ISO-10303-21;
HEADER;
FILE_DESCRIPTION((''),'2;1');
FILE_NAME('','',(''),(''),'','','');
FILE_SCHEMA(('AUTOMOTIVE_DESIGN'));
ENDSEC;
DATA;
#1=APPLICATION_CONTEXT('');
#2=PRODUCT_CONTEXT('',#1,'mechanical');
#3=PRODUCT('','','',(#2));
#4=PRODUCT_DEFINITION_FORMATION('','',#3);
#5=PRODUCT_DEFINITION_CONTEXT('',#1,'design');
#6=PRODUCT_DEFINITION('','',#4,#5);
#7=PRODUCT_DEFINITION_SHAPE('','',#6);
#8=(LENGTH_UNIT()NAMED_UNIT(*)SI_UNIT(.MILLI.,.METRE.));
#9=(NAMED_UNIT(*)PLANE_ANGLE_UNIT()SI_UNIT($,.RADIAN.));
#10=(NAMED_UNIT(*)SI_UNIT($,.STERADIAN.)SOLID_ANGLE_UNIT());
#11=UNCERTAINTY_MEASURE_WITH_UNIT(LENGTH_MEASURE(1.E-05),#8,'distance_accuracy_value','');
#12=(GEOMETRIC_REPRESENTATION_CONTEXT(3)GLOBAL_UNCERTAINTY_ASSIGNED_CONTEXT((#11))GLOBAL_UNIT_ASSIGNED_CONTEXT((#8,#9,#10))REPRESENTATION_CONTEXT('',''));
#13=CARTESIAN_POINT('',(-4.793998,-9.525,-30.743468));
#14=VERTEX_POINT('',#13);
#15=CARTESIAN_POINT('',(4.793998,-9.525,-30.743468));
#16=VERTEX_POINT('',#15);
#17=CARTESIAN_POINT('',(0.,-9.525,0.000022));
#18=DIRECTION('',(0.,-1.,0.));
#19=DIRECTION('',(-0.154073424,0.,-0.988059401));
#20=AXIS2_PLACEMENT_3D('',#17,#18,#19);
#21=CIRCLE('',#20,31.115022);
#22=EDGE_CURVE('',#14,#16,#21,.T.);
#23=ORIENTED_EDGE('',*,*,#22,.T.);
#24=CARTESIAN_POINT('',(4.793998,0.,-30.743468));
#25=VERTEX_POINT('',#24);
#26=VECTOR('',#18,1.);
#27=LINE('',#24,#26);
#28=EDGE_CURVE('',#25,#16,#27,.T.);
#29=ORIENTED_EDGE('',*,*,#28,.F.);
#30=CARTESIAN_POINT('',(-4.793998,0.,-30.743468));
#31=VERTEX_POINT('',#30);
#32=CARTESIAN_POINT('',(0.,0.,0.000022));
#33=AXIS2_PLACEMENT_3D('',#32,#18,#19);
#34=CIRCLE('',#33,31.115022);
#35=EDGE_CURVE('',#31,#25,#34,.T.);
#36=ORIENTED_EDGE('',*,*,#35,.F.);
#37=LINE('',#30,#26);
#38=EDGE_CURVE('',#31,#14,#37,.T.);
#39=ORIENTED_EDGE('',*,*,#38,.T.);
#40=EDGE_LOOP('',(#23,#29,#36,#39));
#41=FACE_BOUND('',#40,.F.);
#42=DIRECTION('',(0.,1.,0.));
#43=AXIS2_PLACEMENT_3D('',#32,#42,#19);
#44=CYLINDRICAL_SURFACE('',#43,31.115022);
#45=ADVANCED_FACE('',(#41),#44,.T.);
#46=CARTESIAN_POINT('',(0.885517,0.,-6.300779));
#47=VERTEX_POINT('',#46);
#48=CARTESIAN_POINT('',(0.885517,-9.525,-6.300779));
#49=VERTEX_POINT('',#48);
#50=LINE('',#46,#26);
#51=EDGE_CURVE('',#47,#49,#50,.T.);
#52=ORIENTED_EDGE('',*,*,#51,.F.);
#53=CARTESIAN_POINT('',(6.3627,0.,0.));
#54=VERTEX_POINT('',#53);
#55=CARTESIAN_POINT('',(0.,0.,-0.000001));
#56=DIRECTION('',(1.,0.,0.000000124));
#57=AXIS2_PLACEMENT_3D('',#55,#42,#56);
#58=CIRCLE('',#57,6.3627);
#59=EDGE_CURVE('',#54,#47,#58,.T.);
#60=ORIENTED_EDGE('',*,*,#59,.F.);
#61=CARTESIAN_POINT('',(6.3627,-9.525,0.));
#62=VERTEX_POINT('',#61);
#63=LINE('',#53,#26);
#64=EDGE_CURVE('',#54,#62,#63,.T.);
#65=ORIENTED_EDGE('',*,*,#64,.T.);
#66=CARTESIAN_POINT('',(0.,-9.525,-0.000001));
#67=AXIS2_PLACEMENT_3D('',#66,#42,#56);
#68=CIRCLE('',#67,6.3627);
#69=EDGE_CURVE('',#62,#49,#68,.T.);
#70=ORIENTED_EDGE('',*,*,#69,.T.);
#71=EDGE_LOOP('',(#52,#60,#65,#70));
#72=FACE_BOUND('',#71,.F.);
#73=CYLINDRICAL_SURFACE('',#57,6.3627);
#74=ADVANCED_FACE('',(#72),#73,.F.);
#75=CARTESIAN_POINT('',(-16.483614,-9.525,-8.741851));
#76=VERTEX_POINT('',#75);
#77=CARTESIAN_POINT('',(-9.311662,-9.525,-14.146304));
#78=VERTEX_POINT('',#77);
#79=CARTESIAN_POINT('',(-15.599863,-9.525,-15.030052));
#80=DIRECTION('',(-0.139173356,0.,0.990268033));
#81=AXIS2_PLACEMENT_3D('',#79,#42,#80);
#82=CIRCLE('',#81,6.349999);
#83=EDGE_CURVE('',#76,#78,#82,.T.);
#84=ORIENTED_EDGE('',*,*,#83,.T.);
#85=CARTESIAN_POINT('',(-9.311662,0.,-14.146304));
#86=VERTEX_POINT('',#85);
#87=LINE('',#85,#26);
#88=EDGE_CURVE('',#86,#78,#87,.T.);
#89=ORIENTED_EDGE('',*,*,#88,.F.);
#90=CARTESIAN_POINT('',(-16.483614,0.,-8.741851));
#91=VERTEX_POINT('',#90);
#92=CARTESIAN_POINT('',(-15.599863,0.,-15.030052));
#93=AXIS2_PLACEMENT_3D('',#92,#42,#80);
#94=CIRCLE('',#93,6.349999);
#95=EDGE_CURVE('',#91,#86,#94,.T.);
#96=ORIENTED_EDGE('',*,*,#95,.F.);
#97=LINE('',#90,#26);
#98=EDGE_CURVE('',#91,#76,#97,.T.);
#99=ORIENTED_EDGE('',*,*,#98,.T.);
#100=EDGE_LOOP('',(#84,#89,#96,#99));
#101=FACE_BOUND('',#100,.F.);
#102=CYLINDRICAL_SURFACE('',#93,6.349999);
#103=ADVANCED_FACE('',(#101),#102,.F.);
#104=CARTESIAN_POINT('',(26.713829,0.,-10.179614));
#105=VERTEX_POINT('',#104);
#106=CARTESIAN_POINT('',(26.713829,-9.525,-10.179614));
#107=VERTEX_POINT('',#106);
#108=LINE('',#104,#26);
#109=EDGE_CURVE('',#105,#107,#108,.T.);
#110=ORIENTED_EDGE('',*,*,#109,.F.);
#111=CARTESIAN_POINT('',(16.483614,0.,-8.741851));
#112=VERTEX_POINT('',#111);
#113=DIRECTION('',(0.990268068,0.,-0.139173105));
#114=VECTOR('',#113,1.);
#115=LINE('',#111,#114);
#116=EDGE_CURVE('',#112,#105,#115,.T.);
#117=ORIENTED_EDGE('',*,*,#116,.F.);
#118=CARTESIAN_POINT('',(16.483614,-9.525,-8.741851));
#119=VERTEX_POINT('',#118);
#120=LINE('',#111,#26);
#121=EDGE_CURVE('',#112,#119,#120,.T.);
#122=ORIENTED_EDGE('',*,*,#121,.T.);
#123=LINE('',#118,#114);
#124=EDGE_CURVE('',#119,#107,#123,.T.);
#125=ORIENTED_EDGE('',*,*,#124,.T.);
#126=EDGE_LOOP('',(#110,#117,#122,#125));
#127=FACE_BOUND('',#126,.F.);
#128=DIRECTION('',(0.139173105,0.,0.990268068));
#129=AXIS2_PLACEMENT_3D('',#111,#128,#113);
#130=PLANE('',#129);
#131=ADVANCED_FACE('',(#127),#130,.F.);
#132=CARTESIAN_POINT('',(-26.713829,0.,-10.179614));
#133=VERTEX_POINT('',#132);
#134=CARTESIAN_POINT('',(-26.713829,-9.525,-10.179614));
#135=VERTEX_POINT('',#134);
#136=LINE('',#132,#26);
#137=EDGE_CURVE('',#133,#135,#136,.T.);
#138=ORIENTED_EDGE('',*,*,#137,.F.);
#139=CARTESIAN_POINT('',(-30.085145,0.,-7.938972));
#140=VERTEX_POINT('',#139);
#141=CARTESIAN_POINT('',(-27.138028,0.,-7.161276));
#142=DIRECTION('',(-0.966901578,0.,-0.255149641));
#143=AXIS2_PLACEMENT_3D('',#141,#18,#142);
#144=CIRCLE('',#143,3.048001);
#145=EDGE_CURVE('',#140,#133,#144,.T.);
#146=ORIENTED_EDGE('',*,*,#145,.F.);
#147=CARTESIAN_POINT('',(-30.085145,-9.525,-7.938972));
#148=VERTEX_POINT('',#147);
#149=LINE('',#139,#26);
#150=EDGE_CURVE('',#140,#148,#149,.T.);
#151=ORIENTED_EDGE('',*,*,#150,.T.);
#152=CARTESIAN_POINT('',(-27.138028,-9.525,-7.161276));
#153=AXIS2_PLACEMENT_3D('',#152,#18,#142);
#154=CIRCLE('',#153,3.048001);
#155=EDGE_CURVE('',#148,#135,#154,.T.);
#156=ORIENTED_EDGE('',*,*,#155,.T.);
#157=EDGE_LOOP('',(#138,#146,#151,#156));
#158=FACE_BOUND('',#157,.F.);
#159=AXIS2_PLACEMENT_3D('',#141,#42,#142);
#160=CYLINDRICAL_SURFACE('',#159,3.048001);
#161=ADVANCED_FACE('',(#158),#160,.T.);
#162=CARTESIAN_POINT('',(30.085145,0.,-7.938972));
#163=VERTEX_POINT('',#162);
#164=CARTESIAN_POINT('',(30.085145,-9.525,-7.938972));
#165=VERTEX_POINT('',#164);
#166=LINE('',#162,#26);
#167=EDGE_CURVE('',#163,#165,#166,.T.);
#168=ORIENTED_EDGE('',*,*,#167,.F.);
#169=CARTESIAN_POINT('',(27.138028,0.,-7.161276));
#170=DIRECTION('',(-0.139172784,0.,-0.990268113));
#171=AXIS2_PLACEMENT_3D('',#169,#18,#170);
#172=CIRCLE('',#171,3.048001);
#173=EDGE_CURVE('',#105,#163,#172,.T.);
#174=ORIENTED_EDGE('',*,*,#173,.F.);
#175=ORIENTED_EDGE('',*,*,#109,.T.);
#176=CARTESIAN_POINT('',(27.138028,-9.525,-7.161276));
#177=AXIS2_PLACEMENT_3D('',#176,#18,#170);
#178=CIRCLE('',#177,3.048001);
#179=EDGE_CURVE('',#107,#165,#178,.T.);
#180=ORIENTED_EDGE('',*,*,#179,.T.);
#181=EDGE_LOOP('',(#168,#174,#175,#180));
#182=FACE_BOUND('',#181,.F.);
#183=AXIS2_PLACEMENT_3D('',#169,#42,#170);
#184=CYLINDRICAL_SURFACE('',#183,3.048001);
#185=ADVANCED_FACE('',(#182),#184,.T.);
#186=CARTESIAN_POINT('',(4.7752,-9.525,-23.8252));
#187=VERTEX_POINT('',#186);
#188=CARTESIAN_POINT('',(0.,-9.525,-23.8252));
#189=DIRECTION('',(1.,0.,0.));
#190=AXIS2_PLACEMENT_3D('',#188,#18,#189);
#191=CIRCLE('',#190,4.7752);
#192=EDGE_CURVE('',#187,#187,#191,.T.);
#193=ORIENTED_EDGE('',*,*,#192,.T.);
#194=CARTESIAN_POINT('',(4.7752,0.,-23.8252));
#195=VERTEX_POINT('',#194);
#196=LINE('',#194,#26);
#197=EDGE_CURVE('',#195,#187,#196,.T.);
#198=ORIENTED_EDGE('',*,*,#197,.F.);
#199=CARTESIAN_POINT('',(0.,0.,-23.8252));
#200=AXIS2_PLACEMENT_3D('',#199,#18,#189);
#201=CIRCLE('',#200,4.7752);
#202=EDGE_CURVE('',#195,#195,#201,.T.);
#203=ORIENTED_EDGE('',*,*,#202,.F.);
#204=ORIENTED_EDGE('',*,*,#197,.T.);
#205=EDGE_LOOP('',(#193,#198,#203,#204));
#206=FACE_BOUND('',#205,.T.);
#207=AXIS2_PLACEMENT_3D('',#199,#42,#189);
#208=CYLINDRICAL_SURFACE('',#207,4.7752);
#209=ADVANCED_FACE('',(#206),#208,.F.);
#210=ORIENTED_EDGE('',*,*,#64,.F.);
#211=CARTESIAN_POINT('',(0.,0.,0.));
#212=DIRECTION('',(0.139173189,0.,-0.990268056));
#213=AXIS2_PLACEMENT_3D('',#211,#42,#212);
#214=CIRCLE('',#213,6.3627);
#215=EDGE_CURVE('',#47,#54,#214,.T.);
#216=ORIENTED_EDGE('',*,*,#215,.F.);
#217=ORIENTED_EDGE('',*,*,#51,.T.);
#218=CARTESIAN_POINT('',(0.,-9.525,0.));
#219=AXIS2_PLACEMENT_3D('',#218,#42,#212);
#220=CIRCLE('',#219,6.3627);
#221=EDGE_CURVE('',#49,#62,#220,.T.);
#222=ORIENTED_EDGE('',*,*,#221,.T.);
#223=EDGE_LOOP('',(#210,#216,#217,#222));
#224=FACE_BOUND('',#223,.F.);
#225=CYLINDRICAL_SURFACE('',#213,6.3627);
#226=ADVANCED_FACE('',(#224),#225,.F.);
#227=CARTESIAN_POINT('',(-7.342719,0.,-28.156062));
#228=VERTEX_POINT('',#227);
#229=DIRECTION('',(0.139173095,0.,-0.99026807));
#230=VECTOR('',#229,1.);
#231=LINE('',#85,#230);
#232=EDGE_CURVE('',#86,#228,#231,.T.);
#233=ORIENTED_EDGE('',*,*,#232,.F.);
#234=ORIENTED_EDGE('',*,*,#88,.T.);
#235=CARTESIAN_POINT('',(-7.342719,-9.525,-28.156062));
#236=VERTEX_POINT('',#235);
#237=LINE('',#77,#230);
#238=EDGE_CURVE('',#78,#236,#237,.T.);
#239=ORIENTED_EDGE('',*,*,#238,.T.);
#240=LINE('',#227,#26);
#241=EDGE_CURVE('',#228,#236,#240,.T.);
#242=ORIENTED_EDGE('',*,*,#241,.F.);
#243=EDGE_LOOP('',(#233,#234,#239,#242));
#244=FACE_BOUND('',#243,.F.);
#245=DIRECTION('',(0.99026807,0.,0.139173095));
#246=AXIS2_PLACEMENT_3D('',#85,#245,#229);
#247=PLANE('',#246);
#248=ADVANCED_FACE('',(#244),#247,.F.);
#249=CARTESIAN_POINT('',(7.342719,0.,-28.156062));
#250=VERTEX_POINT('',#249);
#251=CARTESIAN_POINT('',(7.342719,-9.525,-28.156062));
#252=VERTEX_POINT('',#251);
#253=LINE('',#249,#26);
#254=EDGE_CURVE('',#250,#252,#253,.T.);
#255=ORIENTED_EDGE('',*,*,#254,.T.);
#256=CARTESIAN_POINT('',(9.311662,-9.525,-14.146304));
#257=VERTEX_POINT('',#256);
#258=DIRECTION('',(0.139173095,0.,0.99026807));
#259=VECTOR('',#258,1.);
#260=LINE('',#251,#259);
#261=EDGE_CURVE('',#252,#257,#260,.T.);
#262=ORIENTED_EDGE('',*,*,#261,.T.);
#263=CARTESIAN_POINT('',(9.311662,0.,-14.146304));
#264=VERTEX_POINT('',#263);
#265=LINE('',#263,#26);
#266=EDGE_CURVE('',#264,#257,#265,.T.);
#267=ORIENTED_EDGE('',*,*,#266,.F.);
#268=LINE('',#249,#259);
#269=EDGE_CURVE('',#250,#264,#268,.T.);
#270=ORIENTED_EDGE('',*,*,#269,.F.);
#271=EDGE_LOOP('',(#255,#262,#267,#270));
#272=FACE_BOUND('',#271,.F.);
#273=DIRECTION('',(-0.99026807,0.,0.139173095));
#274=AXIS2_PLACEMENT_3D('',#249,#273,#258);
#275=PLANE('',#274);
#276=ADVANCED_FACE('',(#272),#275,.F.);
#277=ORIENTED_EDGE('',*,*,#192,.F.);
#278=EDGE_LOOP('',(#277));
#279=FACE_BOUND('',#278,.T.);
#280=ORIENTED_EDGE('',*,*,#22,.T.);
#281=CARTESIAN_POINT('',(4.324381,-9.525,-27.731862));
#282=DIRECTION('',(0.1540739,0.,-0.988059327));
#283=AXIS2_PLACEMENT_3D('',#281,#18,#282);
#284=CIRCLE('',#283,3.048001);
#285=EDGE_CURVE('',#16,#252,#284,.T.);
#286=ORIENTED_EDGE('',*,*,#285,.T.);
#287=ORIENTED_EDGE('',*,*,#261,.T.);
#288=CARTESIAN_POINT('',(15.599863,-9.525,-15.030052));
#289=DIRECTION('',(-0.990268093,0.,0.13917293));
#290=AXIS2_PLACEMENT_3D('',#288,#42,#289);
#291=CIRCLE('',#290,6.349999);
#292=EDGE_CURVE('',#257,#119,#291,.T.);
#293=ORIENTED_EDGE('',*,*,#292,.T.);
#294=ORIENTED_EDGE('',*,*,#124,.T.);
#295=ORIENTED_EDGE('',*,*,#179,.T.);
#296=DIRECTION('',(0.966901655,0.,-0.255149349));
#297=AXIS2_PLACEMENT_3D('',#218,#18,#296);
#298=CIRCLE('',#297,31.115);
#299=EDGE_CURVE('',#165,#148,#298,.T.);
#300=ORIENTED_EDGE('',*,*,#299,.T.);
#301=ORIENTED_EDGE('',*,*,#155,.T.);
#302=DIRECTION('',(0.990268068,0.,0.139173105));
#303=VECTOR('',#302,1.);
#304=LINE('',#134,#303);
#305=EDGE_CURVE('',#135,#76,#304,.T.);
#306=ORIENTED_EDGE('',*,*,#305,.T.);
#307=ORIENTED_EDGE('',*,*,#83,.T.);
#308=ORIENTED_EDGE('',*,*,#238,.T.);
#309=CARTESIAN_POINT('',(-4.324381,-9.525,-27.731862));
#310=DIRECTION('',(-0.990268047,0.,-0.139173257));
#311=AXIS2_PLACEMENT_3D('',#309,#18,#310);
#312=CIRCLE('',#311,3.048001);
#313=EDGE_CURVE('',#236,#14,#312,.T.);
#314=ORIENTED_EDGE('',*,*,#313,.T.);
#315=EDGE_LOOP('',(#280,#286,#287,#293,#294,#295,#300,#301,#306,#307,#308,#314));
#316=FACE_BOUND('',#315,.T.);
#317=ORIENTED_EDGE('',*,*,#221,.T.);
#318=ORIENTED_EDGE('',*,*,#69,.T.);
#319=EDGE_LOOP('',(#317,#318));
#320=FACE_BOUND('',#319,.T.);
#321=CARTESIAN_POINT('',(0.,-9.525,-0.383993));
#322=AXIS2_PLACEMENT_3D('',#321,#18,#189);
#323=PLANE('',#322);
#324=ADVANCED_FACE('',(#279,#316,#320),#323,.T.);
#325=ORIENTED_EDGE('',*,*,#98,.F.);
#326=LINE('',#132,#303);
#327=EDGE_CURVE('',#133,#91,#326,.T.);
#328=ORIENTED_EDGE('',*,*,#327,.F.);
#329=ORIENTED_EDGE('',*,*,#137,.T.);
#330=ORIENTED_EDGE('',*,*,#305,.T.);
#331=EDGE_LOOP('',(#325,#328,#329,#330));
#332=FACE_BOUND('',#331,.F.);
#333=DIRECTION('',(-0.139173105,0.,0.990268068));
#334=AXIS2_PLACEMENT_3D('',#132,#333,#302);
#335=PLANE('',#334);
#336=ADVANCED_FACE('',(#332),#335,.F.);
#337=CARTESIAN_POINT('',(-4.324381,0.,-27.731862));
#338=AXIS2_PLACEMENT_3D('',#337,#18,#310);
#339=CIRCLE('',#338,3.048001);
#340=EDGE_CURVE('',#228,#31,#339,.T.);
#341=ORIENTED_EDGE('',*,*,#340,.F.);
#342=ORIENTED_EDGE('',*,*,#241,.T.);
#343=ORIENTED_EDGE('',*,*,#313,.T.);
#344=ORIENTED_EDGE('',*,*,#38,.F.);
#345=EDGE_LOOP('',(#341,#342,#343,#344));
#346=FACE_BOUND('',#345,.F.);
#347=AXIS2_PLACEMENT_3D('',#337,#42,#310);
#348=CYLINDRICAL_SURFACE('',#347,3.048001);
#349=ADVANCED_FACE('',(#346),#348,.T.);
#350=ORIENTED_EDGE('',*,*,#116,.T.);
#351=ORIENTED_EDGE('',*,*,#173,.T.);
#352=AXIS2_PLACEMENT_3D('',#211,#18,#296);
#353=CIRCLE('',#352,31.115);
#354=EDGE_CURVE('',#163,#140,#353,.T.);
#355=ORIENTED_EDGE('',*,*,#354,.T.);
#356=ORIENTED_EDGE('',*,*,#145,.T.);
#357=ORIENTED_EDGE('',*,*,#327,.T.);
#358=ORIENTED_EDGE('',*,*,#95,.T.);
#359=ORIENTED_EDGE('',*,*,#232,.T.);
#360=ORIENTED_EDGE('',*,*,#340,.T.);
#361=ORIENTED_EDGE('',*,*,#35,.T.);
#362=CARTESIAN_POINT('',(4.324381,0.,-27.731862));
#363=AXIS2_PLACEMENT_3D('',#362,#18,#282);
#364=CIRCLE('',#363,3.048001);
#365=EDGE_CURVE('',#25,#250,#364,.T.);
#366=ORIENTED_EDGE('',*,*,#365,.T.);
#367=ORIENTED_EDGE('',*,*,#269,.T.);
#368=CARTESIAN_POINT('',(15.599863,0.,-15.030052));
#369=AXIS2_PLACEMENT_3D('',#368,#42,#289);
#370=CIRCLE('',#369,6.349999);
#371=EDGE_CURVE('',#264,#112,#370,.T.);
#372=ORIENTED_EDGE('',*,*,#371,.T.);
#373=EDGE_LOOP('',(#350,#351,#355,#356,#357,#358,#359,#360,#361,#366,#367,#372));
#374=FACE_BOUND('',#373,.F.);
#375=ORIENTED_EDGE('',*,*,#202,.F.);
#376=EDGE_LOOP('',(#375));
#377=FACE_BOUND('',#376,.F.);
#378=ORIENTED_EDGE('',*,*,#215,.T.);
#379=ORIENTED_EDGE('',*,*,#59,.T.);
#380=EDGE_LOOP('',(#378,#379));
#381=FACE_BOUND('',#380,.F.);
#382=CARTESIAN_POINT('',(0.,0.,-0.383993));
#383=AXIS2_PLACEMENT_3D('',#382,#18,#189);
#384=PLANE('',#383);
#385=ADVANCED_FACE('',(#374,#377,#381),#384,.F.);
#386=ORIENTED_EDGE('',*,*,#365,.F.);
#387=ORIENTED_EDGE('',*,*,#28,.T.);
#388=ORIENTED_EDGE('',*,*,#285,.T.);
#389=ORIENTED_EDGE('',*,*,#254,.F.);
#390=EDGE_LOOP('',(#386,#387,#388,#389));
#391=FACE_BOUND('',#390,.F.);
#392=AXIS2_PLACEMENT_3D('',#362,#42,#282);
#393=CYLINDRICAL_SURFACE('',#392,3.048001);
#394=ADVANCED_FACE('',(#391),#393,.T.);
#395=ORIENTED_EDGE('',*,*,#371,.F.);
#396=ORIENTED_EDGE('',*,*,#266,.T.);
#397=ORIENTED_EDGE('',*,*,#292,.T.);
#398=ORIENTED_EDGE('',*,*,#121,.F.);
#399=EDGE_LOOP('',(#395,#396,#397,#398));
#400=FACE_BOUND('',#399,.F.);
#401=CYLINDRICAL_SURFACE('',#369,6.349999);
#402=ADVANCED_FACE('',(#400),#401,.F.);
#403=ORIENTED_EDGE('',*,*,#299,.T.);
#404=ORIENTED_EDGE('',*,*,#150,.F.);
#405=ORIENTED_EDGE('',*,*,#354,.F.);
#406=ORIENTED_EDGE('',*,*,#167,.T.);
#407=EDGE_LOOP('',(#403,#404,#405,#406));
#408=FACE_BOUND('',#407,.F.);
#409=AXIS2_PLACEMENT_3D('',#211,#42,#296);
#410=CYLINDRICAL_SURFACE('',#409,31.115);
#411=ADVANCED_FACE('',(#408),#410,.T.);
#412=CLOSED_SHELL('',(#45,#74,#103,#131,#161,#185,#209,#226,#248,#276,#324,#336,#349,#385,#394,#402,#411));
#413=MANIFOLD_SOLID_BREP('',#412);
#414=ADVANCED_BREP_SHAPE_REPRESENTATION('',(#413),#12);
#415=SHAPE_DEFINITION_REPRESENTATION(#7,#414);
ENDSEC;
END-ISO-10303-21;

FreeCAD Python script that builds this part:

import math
import FreeCAD as App
import Part
import Sketcher
Q = App.Units.Quantity

doc = App.newDocument("Part")
params = doc.addObject("Spreadsheet::Sheet", "Params")
for row, (alias, value) in enumerate([
    ("sketch1_radius", "0.12 in"),
    ("sketch1_radius2", "0.25 in"),
    ("sketch1_diameter", "0.376 in"),
    ("sketch1_radius3", "1.225 in"),
    ("pad1_length", "0.375 in"),
], start=1):
    params.set(f"A{row}", alias)
    params.set(f"B{row}", "=" + value)
    params.setAlias(f"B{row}", alias)

body = doc.addObject("PartDesign::Body", "Body")

# Sketch on XZ plane
sketch1 = body.newObject("Sketcher::SketchObject", "Sketch")
sketch1.AttachmentSupport = (doc.getObject("XZ_Plane"), [""])
sketch1.MapMode = "FlatFace"
sketch1.addGeometry([
    Part.ArcOfCircle(Part.Circle(App.Vector(27.1, -7.2, 0), App.Vector(0, 0, 1), 3), math.radians(-98), math.radians(-15)),  # 0
    Part.ArcOfCircle(Part.Circle(App.Vector(0, 0, 0), App.Vector(0, 0, 1), 31.1), math.radians(-15), math.radians(195)),  # 1
    Part.ArcOfCircle(Part.Circle(App.Vector(-27.1, -7.2, 0), App.Vector(0, 0, 1), 3), math.radians(-165), math.radians(-82)),  # 2
    Part.LineSegment(App.Vector(-26.7, -10.2, 0), App.Vector(-16.5, -8.7, 0)),  # 3
    Part.ArcOfCircle(Part.Circle(App.Vector(-15.6, -15, 0), App.Vector(0, 0, 1), 6.3), math.radians(8), math.radians(98)),  # 4
    Part.LineSegment(App.Vector(-9.3, -14.1, 0), App.Vector(-7.3, -28.2, 0)),  # 5
    Part.ArcOfCircle(Part.Circle(App.Vector(-4.3, -27.7, 0), App.Vector(0, 0, 1), 3), math.radians(-172), math.radians(-99)),  # 6
    Part.ArcOfCircle(Part.Circle(App.Vector(0, 0, 0), App.Vector(0, 0, 1), 31.1), math.radians(-98.86), math.radians(-81.14)),  # 7
    Part.ArcOfCircle(Part.Circle(App.Vector(4.3, -27.7, 0), App.Vector(0, 0, 1), 3), math.radians(-81), math.radians(-8)),  # 8
    Part.LineSegment(App.Vector(7.3, -28.2, 0), App.Vector(9.3, -14.1, 0)),  # 9
    Part.ArcOfCircle(Part.Circle(App.Vector(15.6, -15, 0), App.Vector(0, 0, 1), 6.3), math.radians(82), math.radians(172)),  # 10
    Part.LineSegment(App.Vector(16.5, -8.7, 0), App.Vector(26.7, -10.2, 0)),  # 11
    Part.Circle(App.Vector(0, -23.8, 0), App.Vector(0, 0, 1), 4.8),  # 12
    Part.ArcOfCircle(Part.Circle(App.Vector(0, 0, 0), App.Vector(0, 0, 1), 6.4), math.radians(-82), math.radians(0)),  # 13
    Part.ArcOfCircle(Part.Circle(App.Vector(0, 0, 0), App.Vector(0, 0, 1), 6.4), math.radians(0), math.radians(278)),  # 14
], False)
sketch1.addConstraint([
    Sketcher.Constraint("Tangent", 0, 2, 1, 1),
    Sketcher.Constraint("Tangent", 1, 2, 2, 1),
    Sketcher.Constraint("Tangent", 2, 2, 3, 1),
    Sketcher.Constraint("Tangent", 3, 2, 4, 2),
    Sketcher.Constraint("Tangent", 4, 1, 5, 1),
    Sketcher.Constraint("Tangent", 5, 2, 6, 1),
    Sketcher.Constraint("Tangent", 6, 2, 7, 1),
    Sketcher.Constraint("Tangent", 7, 2, 8, 1),
    Sketcher.Constraint("Tangent", 8, 2, 9, 1),
    Sketcher.Constraint("Tangent", 9, 2, 10, 2),
    Sketcher.Constraint("Tangent", 10, 1, 11, 1),
    Sketcher.Constraint("Tangent", 11, 2, 0, 1),
    Sketcher.Constraint("Tangent", 13, 1, 14, 2),
    Sketcher.Constraint("Coincident", 14, 1, 13, 2),
    Sketcher.Constraint("Coincident", 1, 3, -1, 1),
    Sketcher.Constraint("Coincident", 13, 3, -1, 1),
    Sketcher.Constraint("Equal", 0, 2),
    Sketcher.Constraint("Equal", 2, 6),
    Sketcher.Constraint("Equal", 6, 8),
    Sketcher.Constraint("Equal", 4, 10),
    Sketcher.Constraint("Symmetric", 6, 3, 8, 3, -2),
    Sketcher.Constraint("Symmetric", 4, 3, 10, 3, -2),
    Sketcher.Constraint("PointOnObject", 12, 3, -2),
    Sketcher.Constraint("PointOnObject", 14, 1, -1),
    Sketcher.Constraint("Perpendicular", 3, 5),
    Sketcher.Constraint("Perpendicular", 9, 11),
    Sketcher.Constraint("Radius", 0, Q("0.12 in")),
    Sketcher.Constraint("Radius", 4, Q("0.25 in")),
    Sketcher.Constraint("Diameter", 12, Q("0.376 in")),
    Sketcher.Constraint("Angle", 3, Q("8 deg")),
    Sketcher.Constraint("Radius", 1, Q("1.225 in")),
    Sketcher.Constraint("Radius", 13, Q("0.2505 in")),
    Sketcher.Constraint("DistanceY", 12, 3, -1, 1, Q("0.938 in")),
    Sketcher.Constraint("Radius", 7, Q("31.115022 mm")),
    Sketcher.Constraint("DistanceX", 5, 2, 8, 3, Q("11.6671 mm")),
    Sketcher.Constraint("DistanceY", 13, 1, 7, 3, Q("6.300801 mm")),
    Sketcher.Constraint("Distance", 5, Q("14.14744 mm")),
    Sketcher.Constraint("DistanceY", 4, 3, -1, 1, Q("15.030052 mm")),
])
sketch1.setExpression("Constraints[26]", "Params.sketch1_radius")
sketch1.setExpression("Constraints[27]", "Params.sketch1_radius2")
sketch1.setExpression("Constraints[28]", "Params.sketch1_diameter")
sketch1.setExpression("Constraints[30]", "Params.sketch1_radius3")
pad1 = body.newObject("PartDesign::Pad", "Pad")
pad1.Profile = sketch1
pad1.setExpression("Length", "Params.pad1_length")

doc.recompute()
